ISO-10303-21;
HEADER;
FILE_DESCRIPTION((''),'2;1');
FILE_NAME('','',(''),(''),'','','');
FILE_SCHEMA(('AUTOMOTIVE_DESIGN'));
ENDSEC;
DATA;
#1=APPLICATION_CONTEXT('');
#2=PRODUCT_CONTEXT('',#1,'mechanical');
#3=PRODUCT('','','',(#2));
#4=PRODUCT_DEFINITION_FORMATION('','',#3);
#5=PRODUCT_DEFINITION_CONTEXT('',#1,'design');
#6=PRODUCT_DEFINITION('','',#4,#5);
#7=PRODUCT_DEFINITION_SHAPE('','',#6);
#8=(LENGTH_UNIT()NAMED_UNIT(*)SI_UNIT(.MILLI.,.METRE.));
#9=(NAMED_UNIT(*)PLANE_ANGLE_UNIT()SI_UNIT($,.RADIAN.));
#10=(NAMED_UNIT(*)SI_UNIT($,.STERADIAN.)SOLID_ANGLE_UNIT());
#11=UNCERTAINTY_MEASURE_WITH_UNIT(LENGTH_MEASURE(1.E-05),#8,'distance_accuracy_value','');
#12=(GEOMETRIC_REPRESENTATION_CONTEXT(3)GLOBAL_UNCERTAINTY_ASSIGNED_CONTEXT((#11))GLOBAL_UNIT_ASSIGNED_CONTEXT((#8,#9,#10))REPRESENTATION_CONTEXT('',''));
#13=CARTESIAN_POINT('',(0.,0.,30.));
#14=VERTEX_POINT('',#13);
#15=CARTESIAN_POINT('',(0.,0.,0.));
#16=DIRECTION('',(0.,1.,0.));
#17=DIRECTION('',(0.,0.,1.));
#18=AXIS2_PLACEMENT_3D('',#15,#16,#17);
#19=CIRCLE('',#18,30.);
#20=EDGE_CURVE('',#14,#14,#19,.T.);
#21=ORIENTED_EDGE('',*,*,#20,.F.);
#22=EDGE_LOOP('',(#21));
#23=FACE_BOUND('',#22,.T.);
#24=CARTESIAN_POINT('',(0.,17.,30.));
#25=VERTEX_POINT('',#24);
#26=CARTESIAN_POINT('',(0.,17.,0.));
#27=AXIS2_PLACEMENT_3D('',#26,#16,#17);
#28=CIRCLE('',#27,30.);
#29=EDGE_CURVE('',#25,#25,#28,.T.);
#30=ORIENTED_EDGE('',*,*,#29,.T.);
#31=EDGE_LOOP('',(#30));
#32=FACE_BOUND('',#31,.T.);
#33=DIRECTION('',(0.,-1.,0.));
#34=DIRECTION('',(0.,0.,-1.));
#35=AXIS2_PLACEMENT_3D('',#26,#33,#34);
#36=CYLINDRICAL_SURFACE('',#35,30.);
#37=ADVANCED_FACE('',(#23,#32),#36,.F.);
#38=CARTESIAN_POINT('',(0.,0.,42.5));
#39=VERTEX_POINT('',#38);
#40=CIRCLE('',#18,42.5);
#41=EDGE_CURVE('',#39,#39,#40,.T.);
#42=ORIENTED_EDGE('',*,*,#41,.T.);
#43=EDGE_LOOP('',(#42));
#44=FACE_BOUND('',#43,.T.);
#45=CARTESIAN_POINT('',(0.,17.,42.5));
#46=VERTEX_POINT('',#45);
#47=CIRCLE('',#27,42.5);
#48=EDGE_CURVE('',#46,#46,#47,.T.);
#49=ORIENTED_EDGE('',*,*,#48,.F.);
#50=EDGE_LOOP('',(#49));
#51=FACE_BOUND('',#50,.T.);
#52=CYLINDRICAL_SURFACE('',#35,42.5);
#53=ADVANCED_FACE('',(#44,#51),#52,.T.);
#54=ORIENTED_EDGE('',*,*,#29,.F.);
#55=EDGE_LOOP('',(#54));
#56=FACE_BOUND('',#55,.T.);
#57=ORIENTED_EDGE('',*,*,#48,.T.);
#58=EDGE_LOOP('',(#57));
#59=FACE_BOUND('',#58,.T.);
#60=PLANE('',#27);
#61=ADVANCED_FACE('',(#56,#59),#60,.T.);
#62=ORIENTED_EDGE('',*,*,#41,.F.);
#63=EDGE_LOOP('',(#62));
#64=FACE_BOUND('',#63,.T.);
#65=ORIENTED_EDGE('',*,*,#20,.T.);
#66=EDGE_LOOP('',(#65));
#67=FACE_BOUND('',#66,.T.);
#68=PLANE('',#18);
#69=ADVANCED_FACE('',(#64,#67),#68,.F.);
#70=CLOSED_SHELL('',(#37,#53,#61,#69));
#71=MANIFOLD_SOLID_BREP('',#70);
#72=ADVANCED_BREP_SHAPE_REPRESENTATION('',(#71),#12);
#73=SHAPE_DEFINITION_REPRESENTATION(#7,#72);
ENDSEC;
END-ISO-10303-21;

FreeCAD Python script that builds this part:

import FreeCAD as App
import Part
import Sketcher

V = App.Vector

doc = App.newDocument("Part")
params = doc.addObject("Spreadsheet::Sheet", "Params")
for row, (alias, value) in enumerate([
    ("sketch1_diameter", "85 mm"),
    ("sketch1_diameter2", "60 mm"),
    ("pad1_length", "17 mm"),
], start=1):
    params.set(f"A{row}", alias)
    params.set(f"B{row}", "=" + value)
    params.setAlias(f"B{row}", alias)

body = doc.addObject("PartDesign::Body", "Body")

sketch1 = doc.addObject("Sketcher::SketchObject", "Sketch")
body.addObject(sketch1)
sketch1.AttachmentSupport = (doc.XZ_Plane, [""])
sketch1.MapMode = "FlatFace"
sketch1.addGeometry([
    Part.Circle(V(0, 0, 0), V(0, 0, 1), 42),
    Part.Circle(V(0, 0, 0), V(0, 0, 1), 30),
], False)
sketch1.addConstraint([
    Sketcher.Constraint("Coincident", 0, 3, -1, 1),
    Sketcher.Constraint("Coincident", 1, 3, -1, 1),
    Sketcher.Constraint("Diameter", 0, 85.0),
    Sketcher.Constraint("Diameter", 1, 60.0),
])
sketch1.setExpression("Constraints[2]", "Params.sketch1_diameter")
sketch1.setExpression("Constraints[3]", "Params.sketch1_diameter2")
pad1 = doc.addObject("PartDesign::Pad", "Pad")
body.addObject(pad1)
pad1.Profile = sketch1
pad1.setExpression("Length", "Params.pad1_length")
pad1.Reversed = True

doc.recompute()
